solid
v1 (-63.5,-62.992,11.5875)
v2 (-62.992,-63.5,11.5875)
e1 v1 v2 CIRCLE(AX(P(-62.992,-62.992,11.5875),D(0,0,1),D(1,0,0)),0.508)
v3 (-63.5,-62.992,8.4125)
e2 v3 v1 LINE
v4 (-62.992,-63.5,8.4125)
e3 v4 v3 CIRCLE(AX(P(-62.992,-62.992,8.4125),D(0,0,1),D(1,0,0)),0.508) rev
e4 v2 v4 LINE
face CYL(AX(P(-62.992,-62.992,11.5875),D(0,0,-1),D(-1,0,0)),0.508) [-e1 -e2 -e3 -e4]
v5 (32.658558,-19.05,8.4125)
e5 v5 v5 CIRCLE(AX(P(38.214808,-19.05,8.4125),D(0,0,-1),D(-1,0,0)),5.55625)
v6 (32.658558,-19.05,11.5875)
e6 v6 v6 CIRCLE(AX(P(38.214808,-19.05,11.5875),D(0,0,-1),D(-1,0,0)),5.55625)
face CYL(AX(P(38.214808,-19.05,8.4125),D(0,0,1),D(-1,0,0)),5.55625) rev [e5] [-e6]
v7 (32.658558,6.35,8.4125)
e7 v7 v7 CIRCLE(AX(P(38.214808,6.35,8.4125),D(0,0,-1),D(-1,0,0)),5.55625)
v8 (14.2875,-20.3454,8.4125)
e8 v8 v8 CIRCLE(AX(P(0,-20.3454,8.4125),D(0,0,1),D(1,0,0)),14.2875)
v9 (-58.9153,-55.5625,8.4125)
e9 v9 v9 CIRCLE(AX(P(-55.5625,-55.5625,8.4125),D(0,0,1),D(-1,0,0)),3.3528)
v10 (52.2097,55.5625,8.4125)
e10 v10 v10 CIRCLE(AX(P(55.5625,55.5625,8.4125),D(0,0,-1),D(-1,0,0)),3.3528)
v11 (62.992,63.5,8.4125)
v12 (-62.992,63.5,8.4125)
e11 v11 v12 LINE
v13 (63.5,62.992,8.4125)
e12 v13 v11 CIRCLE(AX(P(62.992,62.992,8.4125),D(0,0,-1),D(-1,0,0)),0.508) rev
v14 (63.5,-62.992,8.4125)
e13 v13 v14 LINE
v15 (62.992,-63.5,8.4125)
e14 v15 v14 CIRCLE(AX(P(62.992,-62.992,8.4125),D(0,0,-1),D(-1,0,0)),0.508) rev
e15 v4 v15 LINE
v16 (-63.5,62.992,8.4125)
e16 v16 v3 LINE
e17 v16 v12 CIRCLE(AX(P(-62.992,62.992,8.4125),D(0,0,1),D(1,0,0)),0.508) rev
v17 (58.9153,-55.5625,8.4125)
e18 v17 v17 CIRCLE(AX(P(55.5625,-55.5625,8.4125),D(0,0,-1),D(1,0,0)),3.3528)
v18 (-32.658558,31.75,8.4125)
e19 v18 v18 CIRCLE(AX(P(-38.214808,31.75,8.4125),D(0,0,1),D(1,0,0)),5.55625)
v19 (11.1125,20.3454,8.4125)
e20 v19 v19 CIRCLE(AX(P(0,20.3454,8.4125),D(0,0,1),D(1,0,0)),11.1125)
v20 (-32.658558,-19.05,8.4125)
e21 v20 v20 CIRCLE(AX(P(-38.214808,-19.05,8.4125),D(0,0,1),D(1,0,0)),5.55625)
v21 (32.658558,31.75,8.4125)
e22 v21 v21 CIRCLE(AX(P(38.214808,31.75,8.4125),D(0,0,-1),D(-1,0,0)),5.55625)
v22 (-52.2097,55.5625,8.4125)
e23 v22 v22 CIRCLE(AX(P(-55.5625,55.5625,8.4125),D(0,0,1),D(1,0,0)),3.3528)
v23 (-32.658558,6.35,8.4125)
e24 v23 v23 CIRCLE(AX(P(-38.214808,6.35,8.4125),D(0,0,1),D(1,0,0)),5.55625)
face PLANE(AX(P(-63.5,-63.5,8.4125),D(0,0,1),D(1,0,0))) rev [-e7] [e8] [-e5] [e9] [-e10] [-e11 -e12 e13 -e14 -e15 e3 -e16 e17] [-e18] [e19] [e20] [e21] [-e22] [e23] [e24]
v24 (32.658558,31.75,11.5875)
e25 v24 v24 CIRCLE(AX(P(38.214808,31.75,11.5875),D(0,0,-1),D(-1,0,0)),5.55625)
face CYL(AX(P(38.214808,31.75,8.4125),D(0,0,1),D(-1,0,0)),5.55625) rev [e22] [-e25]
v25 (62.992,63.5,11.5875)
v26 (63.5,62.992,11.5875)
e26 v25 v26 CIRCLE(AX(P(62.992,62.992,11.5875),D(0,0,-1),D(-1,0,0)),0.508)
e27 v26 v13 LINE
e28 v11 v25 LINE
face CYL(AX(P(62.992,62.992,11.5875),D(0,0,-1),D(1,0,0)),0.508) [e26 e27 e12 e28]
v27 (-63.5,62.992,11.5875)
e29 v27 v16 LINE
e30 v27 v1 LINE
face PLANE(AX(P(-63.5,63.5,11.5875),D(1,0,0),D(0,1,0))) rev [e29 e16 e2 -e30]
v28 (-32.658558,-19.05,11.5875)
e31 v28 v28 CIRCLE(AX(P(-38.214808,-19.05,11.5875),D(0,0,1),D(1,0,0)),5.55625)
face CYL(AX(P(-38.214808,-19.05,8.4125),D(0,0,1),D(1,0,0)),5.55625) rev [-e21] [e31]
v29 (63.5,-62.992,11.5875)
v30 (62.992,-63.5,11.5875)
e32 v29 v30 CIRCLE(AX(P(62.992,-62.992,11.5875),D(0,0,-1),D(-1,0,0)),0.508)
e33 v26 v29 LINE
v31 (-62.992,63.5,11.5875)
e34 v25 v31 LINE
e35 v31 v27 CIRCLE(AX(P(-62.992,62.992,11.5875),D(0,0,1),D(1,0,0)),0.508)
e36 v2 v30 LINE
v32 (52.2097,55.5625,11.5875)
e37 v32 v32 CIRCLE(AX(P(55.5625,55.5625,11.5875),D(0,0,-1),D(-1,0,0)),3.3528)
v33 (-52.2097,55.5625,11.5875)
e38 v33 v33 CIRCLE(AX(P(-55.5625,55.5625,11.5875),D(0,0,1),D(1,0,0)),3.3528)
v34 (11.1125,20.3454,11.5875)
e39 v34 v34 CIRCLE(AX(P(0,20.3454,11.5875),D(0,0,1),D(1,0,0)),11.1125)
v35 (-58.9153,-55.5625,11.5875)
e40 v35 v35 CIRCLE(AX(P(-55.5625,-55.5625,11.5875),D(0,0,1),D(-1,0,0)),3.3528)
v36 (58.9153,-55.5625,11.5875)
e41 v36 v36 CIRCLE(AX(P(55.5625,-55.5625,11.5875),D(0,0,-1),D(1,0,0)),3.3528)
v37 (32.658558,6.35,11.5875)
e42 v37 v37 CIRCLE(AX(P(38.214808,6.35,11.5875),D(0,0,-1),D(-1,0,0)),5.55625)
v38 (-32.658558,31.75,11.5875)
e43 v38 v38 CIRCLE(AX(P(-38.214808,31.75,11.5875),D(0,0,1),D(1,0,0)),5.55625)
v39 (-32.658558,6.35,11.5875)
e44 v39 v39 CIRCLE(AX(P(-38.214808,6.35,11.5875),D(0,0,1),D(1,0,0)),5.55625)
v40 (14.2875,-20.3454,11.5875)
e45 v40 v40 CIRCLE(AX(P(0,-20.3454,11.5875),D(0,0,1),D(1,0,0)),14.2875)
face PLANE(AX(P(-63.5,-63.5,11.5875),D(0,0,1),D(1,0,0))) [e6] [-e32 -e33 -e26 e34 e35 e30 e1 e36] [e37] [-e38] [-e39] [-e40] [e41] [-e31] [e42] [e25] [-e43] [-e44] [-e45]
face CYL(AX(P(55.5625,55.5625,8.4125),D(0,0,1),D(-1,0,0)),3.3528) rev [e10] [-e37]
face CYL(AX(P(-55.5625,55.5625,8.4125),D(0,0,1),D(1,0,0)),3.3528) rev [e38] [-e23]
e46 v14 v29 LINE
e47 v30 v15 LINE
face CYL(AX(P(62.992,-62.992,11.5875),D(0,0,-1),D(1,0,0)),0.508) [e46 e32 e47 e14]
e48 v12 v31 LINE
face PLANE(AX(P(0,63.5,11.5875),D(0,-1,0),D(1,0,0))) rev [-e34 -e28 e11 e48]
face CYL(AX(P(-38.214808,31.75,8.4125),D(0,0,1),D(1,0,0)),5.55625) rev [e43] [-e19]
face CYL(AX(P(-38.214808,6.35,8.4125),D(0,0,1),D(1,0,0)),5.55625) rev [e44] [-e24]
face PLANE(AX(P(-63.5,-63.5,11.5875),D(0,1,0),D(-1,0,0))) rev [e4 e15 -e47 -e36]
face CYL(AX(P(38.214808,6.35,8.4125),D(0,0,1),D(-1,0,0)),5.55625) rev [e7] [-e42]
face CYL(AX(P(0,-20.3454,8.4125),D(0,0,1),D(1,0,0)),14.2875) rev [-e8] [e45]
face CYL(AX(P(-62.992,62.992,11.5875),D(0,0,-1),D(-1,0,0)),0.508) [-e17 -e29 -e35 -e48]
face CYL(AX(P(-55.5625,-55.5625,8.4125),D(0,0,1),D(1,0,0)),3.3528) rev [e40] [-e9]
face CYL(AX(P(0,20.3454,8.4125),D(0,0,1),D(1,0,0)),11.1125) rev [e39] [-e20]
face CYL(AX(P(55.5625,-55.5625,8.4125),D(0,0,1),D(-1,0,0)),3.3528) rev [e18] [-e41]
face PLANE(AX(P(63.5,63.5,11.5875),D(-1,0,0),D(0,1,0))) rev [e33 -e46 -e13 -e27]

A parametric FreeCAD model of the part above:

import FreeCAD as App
import Part
import Sketcher
Q = App.Units.Quantity


def edges_at(feature, points):
    """Names of the edges that pass closest to the given points."""
    edges = feature.Shape.Edges
    near = lambda p: min(range(len(edges)), key=lambda i: edges[i].distToShape(Part.Vertex(*p))[0])
    return sorted({f"Edge{near(p) + 1}" for p in points})


def add_polygon(sketch, points):
    """Adds a closed chain of lines whose ends are joined by coincident constraints."""
    first, n = sketch.GeometryCount, len(points)
    for a, b in zip(points, points[1:] + points[:1]):
        sketch.addGeometry(Part.LineSegment(App.Vector(*a, 0), App.Vector(*b, 0)), False)
    for i in range(n):
        sketch.addConstraint(Sketcher.Constraint("Coincident", first + i, 2, first + (i + 1) % n, 1))

doc = App.newDocument("Part")
body = doc.addObject("PartDesign::Body", "Body")

sketch1 = body.newObject("Sketcher::SketchObject", "Sketch")
sketch1.AttachmentSupport = (doc.getObject("XY_Plane"), [""])
sketch1.MapMode = "FlatFace"
sketch1.AttachmentOffset = App.Placement(App.Vector(0, 0, 10), App.Rotation())
add_polygon(sketch1, [(-64, 64), (-64, -64), (0, -64), (0, 64)])
sketch1.addConstraint([
    Sketcher.Constraint("Vertical", 0),
    Sketcher.Constraint("Horizontal", 1),
    Sketcher.Constraint("Vertical", 2),
    Sketcher.Constraint("Horizontal", 3),
    Sketcher.Constraint("Symmetric", 1, 2, 2, 2, -1, 1),
    Sketcher.Constraint("DistanceY", 0, 2, 0, 1, Q("5 in")),
    Sketcher.Constraint("DistanceX", 1, 1, 1, 2, Q("2.5 in")),
])
pad1 = body.newObject("PartDesign::Pad", "Pad")
pad1.Profile = sketch1
pad1.Length = Q("0.125 in")
pad1.Midplane = True

sketch2 = body.newObject("Sketcher::SketchObject", "Sketch001")
sketch2.AttachmentSupport = (doc.getObject("XY_Plane"), [""])
sketch2.MapMode = "FlatFace"
sketch2.AttachmentOffset = App.Placement(App.Vector(0, 0, 11.5875), App.Rotation())
sketch2.addGeometry([
    Part.Circle(App.Vector(-55.6, -55.6, 0), App.Vector(0, 0, 1), 3.4),
    Part.Circle(App.Vector(0, 20.3, 0), App.Vector(0, 0, 1), 11.1),
    Part.Circle(App.Vector(0, -20.3, 0), App.Vector(0, 0, 1), 14.3),
    Part.Circle(App.Vector(-38.2, 6.3, 0), App.Vector(0, 0, 1), 5.6),
    Part.Circle(App.Vector(-38.2, -19.1, 0), App.Vector(0, 0, 1), 5.6),
    Part.Circle(App.Vector(-38.2, 31.8, 0), App.Vector(0, 0, 1), 5.6),
    Part.Circle(App.Vector(-55.6, 55.6, 0), App.Vector(0, 0, 1), 3.4),
], False)
sketch2.addConstraint([
    Sketcher.Constraint("Equal", 3, 4),
    Sketcher.Constraint("Equal", 4, 5),
    Sketcher.Constraint("Equal", 0, 6),
    Sketcher.Constraint("Symmetric", 1, 3, 2, 3, -1, 1),
    Sketcher.Constraint("Symmetric", 0, 3, 6, 3, -1),
    Sketcher.Constraint("PointOnObject", 1, 3, -2),
    Sketcher.Constraint("Vertical", 3, 3, 4, 3),
    Sketcher.Constraint("Vertical", 4, 3, 5, 3),
    Sketcher.Constraint("Diameter", 0, Q("0.264 in")),
    Sketcher.Constraint("Diameter", 1, Q("0.875 in")),
    Sketcher.Constraint("Diameter", 2, Q("1.125 in")),
    Sketcher.Constraint("Diameter", 3, Q("0.4375 in")),
    Sketcher.Constraint("DistanceY", 4, 3, 3, 3, Q("1 in")),
    Sketcher.Constraint("DistanceY", 3, 3, 5, 3, Q("1 in")),
    Sketcher.Constraint("DistanceY", -1, 1, 3, 3, Q("0.25 in")),
    Sketcher.Constraint("DistanceX", 0, 3, -1, 1, Q("2.1875 in")),
    Sketcher.Constraint("DistanceY", 0, 3, -1, 1, Q("2.1875 in")),
    Sketcher.Constraint("DistanceY", -1, 1, 1, 3, Q("0.801 in")),
    Sketcher.Constraint("DistanceX", 3, 3, -1, 1, Q("38.214808 mm")),
])
pocket1 = body.newObject("PartDesign::Pocket", "Pocket")
pocket1.Profile = sketch2
pocket1.Type = "ThroughAll"
doc.recompute()

fillet = body.newObject("PartDesign::Fillet", "Fillet")
fillet.Base = (pocket1, edges_at(pocket1, [(-63.5, 63.5, 10), (-63.5, -63.5, 10)]))
fillet.Radius = Q("0.02 in")
body2 = doc.addObject("PartDesign::Body", "Body001")
doc.recompute()

body2.BaseFeature = body
doc.recompute()

mirroring = doc.addObject("Part::Mirroring", "Mirroring")
mirroring.Source = body
mirroring.Base = App.Vector(0, 63.5, 11.5875)
mirroring.Normal = App.Vector(-1, 0, 0)
body3 = doc.addObject("PartDesign::Body", "Body002")
body3.BaseFeature = mirroring
boolean = body2.newObject("PartDesign::Boolean", "Boolean")
boolean.Type = "Fuse"
boolean.addObjects([body3])
doc.recompute()
mirroring.Visibility = False

doc.recompute()
